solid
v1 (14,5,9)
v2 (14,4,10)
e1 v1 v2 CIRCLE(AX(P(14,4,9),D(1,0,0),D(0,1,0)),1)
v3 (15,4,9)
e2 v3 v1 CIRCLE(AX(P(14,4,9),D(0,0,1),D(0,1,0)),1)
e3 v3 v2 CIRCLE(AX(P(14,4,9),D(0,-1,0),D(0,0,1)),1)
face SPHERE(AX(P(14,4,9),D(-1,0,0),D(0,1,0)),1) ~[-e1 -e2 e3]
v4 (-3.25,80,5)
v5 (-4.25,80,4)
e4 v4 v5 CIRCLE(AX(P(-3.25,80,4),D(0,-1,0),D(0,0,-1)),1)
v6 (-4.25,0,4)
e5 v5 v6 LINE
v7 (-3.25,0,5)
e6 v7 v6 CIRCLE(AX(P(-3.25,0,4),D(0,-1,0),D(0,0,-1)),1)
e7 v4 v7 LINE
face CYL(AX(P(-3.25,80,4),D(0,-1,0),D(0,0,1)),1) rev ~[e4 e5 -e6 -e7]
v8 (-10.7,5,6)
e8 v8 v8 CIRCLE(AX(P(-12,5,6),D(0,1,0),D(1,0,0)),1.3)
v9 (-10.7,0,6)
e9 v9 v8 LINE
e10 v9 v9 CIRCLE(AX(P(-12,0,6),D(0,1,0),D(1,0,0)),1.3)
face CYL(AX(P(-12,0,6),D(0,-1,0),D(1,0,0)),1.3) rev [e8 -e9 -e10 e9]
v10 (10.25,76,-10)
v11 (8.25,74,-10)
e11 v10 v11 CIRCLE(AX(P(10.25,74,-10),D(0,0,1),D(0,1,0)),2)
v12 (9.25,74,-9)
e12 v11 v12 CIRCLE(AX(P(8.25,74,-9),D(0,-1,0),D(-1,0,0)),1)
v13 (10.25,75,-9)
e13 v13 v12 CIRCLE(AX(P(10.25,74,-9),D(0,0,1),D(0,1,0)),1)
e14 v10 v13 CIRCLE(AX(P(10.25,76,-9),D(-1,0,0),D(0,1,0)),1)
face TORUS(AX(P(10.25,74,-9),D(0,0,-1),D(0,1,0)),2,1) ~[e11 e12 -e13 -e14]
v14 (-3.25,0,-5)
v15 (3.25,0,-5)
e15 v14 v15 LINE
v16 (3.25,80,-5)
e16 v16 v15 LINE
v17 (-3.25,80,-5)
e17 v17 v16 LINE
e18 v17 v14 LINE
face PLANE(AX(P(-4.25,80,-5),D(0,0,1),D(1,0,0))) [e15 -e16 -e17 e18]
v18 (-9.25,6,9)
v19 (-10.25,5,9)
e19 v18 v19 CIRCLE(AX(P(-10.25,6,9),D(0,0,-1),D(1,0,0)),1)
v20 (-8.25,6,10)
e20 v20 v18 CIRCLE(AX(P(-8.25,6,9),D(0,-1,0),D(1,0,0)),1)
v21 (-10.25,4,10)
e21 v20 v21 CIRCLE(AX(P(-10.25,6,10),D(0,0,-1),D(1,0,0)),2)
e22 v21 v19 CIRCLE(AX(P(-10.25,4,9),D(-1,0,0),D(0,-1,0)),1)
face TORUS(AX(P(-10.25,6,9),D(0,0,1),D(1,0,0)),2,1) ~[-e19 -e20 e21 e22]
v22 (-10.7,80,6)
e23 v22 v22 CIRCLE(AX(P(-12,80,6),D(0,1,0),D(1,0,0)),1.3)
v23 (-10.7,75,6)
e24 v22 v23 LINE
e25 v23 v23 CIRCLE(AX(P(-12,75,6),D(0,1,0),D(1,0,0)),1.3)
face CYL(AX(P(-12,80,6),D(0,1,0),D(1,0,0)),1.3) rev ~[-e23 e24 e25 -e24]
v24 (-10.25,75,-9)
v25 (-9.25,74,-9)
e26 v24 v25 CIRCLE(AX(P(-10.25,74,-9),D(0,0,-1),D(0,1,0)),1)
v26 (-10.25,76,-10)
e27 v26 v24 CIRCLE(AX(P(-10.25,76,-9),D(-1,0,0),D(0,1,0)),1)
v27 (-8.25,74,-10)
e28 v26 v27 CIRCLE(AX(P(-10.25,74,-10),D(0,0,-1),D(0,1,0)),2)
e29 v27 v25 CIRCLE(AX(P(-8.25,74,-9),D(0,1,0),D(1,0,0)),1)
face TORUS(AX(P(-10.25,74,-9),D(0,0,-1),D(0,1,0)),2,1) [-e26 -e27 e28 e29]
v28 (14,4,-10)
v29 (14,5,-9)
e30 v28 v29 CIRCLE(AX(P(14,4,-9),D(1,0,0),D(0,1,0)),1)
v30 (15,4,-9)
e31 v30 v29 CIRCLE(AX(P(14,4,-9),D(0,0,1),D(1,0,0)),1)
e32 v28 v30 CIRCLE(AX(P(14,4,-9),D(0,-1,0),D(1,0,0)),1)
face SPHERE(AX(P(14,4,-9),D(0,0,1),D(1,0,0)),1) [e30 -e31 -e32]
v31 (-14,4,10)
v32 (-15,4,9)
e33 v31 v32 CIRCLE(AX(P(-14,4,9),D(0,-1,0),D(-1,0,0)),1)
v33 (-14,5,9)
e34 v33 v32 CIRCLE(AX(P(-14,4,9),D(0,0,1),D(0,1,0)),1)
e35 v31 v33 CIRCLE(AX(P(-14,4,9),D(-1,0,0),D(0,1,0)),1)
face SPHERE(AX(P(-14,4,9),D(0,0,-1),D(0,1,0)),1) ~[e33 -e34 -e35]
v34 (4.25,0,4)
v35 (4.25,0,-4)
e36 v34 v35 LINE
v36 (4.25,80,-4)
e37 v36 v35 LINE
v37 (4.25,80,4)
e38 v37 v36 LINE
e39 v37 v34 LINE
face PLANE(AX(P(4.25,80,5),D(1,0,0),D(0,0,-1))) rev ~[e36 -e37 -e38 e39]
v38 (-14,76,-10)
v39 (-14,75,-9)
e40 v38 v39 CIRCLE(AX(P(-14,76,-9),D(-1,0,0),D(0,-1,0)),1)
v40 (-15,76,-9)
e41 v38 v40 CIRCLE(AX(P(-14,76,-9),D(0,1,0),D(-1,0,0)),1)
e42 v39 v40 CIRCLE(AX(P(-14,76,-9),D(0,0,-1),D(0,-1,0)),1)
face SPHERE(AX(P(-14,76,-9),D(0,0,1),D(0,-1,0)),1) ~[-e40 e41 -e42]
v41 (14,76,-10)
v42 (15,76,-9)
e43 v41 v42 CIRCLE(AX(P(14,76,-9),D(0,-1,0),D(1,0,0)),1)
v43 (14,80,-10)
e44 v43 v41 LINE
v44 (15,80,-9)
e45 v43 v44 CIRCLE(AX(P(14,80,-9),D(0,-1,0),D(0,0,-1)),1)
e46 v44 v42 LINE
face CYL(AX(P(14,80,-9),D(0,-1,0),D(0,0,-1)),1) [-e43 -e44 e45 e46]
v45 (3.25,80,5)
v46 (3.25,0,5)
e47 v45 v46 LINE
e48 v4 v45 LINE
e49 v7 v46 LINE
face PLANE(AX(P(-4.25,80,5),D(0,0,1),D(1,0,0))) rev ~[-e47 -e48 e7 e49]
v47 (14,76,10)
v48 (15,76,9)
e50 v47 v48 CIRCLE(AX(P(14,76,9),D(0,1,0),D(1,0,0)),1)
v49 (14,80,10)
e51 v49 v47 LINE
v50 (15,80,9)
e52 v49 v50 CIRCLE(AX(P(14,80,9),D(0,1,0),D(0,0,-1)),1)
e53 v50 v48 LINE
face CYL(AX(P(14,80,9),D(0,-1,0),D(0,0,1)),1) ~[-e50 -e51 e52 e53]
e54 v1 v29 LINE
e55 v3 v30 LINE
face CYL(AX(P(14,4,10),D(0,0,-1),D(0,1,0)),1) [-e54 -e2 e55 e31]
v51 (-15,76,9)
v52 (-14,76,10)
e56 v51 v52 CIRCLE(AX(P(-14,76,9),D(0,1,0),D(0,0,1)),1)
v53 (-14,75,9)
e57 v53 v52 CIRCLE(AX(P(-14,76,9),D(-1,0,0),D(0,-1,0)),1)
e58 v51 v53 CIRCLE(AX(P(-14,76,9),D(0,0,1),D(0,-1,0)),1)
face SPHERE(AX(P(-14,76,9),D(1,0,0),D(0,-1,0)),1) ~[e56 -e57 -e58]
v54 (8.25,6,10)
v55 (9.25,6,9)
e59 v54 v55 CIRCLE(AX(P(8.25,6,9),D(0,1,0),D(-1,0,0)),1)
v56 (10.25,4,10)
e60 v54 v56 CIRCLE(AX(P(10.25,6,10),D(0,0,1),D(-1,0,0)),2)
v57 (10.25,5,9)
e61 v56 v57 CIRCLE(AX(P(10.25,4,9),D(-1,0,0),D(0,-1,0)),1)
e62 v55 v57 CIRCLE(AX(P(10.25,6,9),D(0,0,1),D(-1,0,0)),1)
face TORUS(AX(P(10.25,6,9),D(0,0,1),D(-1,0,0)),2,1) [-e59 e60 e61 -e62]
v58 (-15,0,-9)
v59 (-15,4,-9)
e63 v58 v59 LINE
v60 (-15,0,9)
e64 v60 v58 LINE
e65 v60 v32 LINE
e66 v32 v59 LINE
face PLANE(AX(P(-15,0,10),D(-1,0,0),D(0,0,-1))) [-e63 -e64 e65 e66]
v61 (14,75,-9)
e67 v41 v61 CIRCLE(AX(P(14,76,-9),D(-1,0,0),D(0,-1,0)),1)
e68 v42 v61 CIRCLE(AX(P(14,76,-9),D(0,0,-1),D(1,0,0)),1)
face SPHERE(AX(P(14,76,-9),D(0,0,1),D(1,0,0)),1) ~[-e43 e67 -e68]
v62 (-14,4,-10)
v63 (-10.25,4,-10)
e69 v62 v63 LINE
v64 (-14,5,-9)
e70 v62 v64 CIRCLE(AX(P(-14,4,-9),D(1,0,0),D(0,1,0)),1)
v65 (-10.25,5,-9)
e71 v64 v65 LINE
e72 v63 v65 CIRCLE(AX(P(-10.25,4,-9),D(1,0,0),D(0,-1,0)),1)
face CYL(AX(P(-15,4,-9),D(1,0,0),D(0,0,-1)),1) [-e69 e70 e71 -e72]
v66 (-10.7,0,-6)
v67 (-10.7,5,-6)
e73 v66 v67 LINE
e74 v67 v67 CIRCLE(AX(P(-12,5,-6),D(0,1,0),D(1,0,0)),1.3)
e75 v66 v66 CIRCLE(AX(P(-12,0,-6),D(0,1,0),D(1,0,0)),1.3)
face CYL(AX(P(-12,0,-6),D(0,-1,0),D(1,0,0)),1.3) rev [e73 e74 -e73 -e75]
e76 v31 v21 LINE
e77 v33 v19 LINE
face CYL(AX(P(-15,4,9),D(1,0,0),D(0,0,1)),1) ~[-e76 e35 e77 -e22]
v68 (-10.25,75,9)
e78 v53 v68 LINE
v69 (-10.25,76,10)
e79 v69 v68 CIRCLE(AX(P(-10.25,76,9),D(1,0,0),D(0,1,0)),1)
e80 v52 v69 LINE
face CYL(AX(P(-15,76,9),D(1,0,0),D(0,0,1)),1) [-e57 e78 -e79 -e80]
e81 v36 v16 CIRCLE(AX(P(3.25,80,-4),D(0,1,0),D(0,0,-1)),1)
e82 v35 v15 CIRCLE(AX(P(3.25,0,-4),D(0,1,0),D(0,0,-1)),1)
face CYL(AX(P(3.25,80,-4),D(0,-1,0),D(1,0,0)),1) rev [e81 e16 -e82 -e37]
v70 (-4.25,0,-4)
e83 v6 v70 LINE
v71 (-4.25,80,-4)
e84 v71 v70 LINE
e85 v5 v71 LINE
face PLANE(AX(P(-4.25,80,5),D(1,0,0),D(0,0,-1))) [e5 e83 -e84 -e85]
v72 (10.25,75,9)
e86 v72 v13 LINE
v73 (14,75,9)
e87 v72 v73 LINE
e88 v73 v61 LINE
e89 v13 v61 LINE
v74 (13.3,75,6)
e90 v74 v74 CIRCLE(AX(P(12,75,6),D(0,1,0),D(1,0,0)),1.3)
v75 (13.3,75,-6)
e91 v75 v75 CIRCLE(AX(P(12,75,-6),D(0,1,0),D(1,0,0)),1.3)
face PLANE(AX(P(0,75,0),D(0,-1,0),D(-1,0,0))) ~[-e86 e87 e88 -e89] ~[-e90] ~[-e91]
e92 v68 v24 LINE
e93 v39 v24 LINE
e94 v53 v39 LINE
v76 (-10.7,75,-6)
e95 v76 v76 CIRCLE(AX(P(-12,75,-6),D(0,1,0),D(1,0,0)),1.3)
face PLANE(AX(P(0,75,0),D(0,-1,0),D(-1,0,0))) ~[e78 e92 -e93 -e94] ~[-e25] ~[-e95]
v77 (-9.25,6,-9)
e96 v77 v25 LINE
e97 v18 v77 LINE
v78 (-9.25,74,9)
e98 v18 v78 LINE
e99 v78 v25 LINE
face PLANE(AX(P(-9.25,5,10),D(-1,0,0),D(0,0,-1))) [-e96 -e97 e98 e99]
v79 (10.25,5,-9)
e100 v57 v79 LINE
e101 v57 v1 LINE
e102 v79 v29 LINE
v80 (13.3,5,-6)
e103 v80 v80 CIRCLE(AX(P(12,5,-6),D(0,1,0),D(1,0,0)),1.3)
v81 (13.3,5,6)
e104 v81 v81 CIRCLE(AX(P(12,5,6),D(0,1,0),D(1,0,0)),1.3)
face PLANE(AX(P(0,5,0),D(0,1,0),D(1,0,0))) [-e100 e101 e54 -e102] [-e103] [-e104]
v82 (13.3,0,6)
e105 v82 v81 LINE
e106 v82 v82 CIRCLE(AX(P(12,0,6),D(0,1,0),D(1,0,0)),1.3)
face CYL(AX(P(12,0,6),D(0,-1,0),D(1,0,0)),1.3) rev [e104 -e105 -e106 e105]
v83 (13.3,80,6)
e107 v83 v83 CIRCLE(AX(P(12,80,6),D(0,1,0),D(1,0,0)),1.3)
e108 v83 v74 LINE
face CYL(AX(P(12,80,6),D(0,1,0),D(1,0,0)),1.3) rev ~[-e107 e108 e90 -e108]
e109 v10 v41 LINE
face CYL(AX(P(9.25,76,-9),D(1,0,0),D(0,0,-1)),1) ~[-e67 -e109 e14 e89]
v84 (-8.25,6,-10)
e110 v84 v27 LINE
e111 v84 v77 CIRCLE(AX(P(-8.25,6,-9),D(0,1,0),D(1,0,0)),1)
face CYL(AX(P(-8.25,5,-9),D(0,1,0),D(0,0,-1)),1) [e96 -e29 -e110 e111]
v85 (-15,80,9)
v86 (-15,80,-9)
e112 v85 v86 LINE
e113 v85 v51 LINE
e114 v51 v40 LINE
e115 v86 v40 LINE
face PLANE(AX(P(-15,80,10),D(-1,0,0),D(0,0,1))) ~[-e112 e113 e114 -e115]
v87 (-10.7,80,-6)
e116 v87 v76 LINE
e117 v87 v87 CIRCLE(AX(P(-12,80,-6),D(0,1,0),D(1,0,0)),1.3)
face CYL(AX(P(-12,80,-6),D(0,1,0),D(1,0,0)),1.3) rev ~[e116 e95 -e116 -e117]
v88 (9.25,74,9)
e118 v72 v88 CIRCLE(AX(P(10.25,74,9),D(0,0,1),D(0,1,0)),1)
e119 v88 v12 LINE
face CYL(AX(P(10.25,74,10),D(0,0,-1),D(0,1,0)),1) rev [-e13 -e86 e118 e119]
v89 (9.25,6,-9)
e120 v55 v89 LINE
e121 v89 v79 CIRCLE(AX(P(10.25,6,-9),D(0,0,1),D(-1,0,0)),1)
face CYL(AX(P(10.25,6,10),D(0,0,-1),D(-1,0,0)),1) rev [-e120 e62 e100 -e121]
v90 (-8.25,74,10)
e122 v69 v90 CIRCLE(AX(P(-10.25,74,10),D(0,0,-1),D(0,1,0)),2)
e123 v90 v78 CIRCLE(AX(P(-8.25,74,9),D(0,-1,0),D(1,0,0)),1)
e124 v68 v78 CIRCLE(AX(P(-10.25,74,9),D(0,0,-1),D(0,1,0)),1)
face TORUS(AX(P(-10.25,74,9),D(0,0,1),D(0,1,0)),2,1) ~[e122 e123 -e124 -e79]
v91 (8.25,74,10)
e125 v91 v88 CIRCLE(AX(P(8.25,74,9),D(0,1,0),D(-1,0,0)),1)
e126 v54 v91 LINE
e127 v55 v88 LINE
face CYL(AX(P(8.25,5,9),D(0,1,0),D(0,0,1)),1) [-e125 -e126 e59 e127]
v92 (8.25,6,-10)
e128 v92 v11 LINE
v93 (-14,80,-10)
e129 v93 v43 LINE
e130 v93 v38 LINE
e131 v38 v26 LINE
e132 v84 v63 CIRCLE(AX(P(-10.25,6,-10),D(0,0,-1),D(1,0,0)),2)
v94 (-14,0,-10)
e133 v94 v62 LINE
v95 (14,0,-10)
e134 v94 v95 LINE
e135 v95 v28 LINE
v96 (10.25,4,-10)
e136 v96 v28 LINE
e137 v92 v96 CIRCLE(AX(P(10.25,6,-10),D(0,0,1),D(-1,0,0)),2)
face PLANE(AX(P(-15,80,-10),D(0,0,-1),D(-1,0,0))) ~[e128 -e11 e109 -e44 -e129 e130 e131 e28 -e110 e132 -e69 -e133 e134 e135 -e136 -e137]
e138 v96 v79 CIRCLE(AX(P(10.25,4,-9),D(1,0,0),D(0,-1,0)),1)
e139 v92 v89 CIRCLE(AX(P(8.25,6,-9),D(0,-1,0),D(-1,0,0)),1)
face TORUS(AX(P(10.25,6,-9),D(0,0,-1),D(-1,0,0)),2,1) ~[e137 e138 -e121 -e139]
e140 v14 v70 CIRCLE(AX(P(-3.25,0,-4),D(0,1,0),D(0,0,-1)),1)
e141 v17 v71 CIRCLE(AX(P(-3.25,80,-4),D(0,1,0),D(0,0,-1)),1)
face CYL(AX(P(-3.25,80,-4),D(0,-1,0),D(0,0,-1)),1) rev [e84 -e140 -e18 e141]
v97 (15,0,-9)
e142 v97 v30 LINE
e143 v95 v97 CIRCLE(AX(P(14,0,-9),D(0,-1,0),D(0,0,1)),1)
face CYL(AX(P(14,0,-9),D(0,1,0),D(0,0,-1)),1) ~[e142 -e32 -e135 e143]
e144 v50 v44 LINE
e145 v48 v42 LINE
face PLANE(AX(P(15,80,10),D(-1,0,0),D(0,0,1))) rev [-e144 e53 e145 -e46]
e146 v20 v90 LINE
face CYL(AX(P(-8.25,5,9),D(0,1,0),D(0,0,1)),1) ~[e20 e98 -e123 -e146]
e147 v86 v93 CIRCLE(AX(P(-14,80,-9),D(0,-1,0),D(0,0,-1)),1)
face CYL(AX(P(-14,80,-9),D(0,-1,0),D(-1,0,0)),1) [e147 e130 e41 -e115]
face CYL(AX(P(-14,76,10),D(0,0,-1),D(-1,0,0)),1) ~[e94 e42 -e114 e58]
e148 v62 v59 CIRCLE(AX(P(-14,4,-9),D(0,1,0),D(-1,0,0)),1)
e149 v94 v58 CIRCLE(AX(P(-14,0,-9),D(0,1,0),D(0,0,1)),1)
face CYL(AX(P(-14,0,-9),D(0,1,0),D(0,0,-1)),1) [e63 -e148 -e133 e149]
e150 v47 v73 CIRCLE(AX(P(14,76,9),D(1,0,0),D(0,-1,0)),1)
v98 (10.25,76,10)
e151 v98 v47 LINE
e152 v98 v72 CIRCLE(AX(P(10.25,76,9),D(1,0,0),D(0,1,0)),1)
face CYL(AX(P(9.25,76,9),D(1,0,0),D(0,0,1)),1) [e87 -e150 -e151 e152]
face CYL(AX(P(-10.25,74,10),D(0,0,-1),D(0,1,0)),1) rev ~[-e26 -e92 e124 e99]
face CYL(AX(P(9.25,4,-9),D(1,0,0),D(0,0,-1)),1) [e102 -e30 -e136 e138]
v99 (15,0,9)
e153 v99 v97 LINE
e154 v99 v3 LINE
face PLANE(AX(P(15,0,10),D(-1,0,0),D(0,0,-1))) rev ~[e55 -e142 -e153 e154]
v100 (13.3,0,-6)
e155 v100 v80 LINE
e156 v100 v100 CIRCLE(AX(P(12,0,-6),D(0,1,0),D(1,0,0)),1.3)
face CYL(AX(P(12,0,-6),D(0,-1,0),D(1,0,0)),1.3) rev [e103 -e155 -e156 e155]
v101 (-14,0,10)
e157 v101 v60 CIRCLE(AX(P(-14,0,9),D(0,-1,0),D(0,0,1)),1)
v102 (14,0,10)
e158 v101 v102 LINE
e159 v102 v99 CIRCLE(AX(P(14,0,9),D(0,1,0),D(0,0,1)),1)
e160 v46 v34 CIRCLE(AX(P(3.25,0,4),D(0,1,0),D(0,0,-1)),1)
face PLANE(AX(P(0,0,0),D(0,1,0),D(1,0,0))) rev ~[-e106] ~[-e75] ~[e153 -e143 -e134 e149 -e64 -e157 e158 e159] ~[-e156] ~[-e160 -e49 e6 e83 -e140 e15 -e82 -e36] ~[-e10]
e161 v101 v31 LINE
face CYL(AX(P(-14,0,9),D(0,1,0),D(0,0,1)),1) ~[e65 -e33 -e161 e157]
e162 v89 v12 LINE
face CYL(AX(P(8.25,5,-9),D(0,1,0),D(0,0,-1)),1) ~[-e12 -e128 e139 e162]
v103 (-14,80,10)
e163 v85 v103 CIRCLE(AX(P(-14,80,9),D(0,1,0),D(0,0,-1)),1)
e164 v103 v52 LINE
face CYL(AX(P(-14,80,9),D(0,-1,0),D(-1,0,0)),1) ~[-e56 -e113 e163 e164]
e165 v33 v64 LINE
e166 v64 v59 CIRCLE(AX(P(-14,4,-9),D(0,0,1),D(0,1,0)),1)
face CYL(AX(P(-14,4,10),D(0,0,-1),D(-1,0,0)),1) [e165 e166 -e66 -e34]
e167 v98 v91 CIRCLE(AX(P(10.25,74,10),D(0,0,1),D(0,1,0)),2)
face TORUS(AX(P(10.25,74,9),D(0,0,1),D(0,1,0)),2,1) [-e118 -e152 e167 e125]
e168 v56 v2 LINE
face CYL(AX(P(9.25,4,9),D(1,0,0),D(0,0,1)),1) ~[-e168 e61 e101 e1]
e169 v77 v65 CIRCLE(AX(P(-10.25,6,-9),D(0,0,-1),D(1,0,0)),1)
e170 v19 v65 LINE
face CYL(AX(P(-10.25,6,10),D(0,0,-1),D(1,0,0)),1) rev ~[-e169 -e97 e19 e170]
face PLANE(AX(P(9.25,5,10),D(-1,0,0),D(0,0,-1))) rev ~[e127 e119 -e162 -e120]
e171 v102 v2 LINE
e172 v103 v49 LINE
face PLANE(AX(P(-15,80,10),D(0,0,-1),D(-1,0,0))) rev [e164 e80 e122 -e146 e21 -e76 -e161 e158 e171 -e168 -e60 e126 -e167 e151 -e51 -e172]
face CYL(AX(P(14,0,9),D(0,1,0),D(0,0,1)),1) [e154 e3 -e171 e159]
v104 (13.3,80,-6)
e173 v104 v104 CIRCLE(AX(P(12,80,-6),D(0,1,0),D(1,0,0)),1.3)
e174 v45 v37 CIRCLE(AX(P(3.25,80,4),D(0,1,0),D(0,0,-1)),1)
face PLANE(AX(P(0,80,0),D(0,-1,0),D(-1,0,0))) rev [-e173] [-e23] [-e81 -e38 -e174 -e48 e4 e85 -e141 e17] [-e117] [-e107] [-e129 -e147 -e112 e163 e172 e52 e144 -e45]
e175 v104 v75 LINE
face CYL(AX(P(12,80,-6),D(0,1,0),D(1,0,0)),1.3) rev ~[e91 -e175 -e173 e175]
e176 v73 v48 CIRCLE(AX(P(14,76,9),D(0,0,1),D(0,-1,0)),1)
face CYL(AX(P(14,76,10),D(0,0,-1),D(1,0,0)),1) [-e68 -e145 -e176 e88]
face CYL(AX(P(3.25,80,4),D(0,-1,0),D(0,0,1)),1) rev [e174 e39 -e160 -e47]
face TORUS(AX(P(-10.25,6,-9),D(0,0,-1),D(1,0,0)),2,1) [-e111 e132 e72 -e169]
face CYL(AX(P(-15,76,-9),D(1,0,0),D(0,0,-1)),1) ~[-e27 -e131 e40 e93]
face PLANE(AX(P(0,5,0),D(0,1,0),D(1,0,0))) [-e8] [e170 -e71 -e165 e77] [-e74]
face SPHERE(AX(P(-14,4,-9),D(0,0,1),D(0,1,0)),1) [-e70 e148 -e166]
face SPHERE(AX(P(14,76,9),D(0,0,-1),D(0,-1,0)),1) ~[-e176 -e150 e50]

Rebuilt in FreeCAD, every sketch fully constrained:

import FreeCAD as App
import Part
import Sketcher
Q = App.Units.Quantity


def edges_at(feature, points):
    """Names of the edges that pass closest to the given points."""
    edges = feature.Shape.Edges
    near = lambda p: min(range(len(edges)), key=lambda i: edges[i].distToShape(Part.Vertex(*p))[0])
    return sorted({f"Edge{near(p) + 1}" for p in points})


def add_polygon(sketch, points):
    """Adds a closed chain of lines whose ends are joined by coincident constraints."""
    first, n = sketch.GeometryCount, len(points)
    for a, b in zip(points, points[1:] + points[:1]):
        sketch.addGeometry(Part.LineSegment(App.Vector(*a, 0), App.Vector(*b, 0)), False)
    for i in range(n):
        sketch.addConstraint(Sketcher.Constraint("Coincident", first + i, 2, first + (i + 1) % n, 1))

doc = App.newDocument("Part")
params = doc.addObject("Spreadsheet::Sheet", "Params")
for row, (alias, value) in enumerate([
    ("sketch1_diameter", "2.6 mm"),
    ("sketch1_width", "30 mm"),
    ("sketch1_height", "20 mm"),
    ("pad1_length", "5 mm"),
    ("sketch2_height", "20 mm"),
    ("sketch2_width", "18.5 mm"),
    ("pad2_length", "70 mm"),
    ("fillet_radius", "1 mm"),
    ("sketch3_height", "10 mm"),
    ("sketch3_width", "8.5 mm"),
    ("fillet2_radius", "1 mm"),
], start=1):
    params.set(f"A{row}", alias)
    params.set(f"B{row}", "=" + value)
    params.setAlias(f"B{row}", alias)

body = doc.addObject("PartDesign::Body", "Body")

sketch1 = body.newObject("Sketcher::SketchObject", "Sketch")
sketch1.AttachmentSupport = (doc.getObject("XZ_Plane"), [""])
sketch1.MapMode = "FlatFace"
add_polygon(sketch1, [(-15, -10), (-15, 10), (15, 10), (15, -10)])
sketch1.addGeometry(Part.Circle(App.Vector(-12, 6, 0), App.Vector(0, 0, 1), 1.3), False)
sketch1.addGeometry(Part.Circle(App.Vector(12, 6, 0), App.Vector(0, 0, 1), 1.3), False)
sketch1.addGeometry(Part.Circle(App.Vector(-12, -6, 0), App.Vector(0, 0, 1), 1.3), False)
sketch1.addGeometry(Part.Circle(App.Vector(12, -6, 0), App.Vector(0, 0, 1), 1.3), False)
sketch1.addConstraint([
    Sketcher.Constraint("Vertical", 0),
    Sketcher.Constraint("Horizontal", 1),
    Sketcher.Constraint("Vertical", 2),
    Sketcher.Constraint("Horizontal", 3),
    Sketcher.Constraint("Equal", 4, 5),
    Sketcher.Constraint("Equal", 5, 6),
    Sketcher.Constraint("Equal", 6, 7),
    Sketcher.Constraint("Symmetric", 5, 3, 6, 3, -1, 1),
    Sketcher.Constraint("Symmetric", 4, 3, 7, 3, -1, 1),
    Sketcher.Constraint("Symmetric", 0, 2, 2, 2, -1, 1),
    Sketcher.Constraint("Symmetric", 4, 3, 5, 3, -2),
    Sketcher.Constraint("Diameter", 4, Q("2.6 mm")),
    Sketcher.Constraint("DistanceX", 1, 1, 1, 2, Q("30 mm")),
    Sketcher.Constraint("DistanceY", 0, 1, 0, 2, Q("20 mm")),
    Sketcher.Constraint("DistanceX", 4, 3, -1, 1, Q("12 mm")),
    Sketcher.Constraint("DistanceY", -1, 1, 4, 3, Q("6 mm")),
])
sketch1.setExpression("Constraints[15]", "Params.sketch1_diameter")
sketch1.setExpression("Constraints[16]", "Params.sketch1_width")
sketch1.setExpression("Constraints[17]", "Params.sketch1_height")
pad1 = body.newObject("PartDesign::Pad", "Pad")
pad1.Profile = sketch1
pad1.setExpression("Length", "Params.pad1_length")
pad1.Reversed = True

sketch2 = body.newObject("Sketcher::SketchObject", "Sketch001")
sketch2.AttachmentSupport = (doc.getObject("XZ_Plane"), [""])
sketch2.MapMode = "FlatFace"
sketch2.AttachmentOffset = App.Placement(App.Vector(0, 0, -5), App.Rotation())
add_polygon(sketch2, [(-9, -10), (-9, 10), (9, 10), (9, -10)])
sketch2.addConstraint([
    Sketcher.Constraint("Vertical", 0),
    Sketcher.Constraint("Horizontal", 1),
    Sketcher.Constraint("Vertical", 2),
    Sketcher.Constraint("Horizontal", 3),
    Sketcher.Constraint("Symmetric", 0, 2, 2, 2, -1, 1),
    Sketcher.Constraint("DistanceY", 0, 1, 0, 2, Q("20 mm")),
    Sketcher.Constraint("DistanceX", 1, 1, 1, 2, Q("18.5 mm")),
])
sketch2.setExpression("Constraints[9]", "Params.sketch2_height")
sketch2.setExpression("Constraints[10]", "Params.sketch2_width")
pad2 = body.newObject("PartDesign::Pad", "Pad001")
pad2.Profile = sketch2
pad2.setExpression("Length", "Params.pad2_length")
pad2.Reversed = True
doc.recompute()

datumplane = body.newObject("PartDesign::Plane", "DatumPlane")
datumplane.AttachmentSupport = (doc.getObject("XZ_Plane"), [""])
datumplane.MapMode = "FlatFace"
datumplane.AttachmentOffset = App.Placement(App.Vector(0, 0, -40), App.Rotation())
mirrored = body.newObject("PartDesign::Mirrored", "Mirrored")
mirrored.Originals = [pad1]
mirrored.MirrorPlane = (datumplane, [""])
body.Tip = mirrored
doc.recompute()

fillet = body.newObject("PartDesign::Fillet", "Fillet")
fillet.Base = (mirrored, edges_at(mirrored, [
    (-15, 5, 0),
    (-12.125, 5, 10),
    (-12.125, 5, -10),
    (12.125, 5, 10),
    (9.25, 5, 0),
    (9.25, 40, 10),
    (9.25, 40, -10),
    (-9.25, 5, 0),
    (-9.25, 40, -10),
    (-9.25, 40, 10),
    (9.25, 75, 0),
    (-9.25, 75, 0),
    (15, 75, 0),
    (15, 77.5, -10),
    (-12.125, 75, 10),
    (12.125, 75, 10),
    (15, 77.5, 10),
    (-15, 75, 0),
    (-15, 77.5, 10),
    (12.125, 75, -10),
    (-12.125, 75, -10),
    (-15, 77.5, -10),
    (15, 5, 0),
    (15, 2.5, 10),
    (-15, 2.5, 10),
    (-15, 2.5, -10),
    (15, 2.5, -10),
    (12.125, 5, -10),
]))
fillet.setExpression("Radius", "Params.fillet_radius")

sketch3 = body.newObject("Sketcher::SketchObject", "Sketch002")
sketch3.AttachmentSupport = (doc.getObject("XZ_Plane"), [""])
sketch3.MapMode = "FlatFace"
sketch3.AttachmentOffset = App.Placement(App.Vector(0, 0, -80), App.Rotation())
add_polygon(sketch3, [(-4, -5), (-4, 5), (4, 5), (4, -5)])
sketch3.addConstraint([
    Sketcher.Constraint("Vertical", 0),
    Sketcher.Constraint("Horizontal", 1),
    Sketcher.Constraint("Vertical", 2),
    Sketcher.Constraint("Horizontal", 3),
    Sketcher.Constraint("Symmetric", 0, 2, 2, 2, -1, 1),
    Sketcher.Constraint("DistanceY", 0, 1, 0, 2, Q("10 mm")),
    Sketcher.Constraint("DistanceX", 1, 1, 1, 2, Q("8.5 mm")),
])
sketch3.setExpression("Constraints[9]", "Params.sketch3_height")
sketch3.setExpression("Constraints[10]", "Params.sketch3_width")
pocket1 = body.newObject("PartDesign::Pocket", "Pocket")
pocket1.Profile = sketch3
pocket1.Type = "ThroughAll"
pocket1.Reversed = True
doc.recompute()

fillet2 = body.newObject("PartDesign::Fillet", "Fillet001")
fillet2.Base = (pocket1, edges_at(pocket1, [
    (4.25, 40, 5),
    (-4.25, 40, 5),
    (-4.25, 40, -5),
    (4.25, 40, -5),
]))
fillet2.setExpression("Radius", "Params.fillet2_radius")

doc.recompute()
